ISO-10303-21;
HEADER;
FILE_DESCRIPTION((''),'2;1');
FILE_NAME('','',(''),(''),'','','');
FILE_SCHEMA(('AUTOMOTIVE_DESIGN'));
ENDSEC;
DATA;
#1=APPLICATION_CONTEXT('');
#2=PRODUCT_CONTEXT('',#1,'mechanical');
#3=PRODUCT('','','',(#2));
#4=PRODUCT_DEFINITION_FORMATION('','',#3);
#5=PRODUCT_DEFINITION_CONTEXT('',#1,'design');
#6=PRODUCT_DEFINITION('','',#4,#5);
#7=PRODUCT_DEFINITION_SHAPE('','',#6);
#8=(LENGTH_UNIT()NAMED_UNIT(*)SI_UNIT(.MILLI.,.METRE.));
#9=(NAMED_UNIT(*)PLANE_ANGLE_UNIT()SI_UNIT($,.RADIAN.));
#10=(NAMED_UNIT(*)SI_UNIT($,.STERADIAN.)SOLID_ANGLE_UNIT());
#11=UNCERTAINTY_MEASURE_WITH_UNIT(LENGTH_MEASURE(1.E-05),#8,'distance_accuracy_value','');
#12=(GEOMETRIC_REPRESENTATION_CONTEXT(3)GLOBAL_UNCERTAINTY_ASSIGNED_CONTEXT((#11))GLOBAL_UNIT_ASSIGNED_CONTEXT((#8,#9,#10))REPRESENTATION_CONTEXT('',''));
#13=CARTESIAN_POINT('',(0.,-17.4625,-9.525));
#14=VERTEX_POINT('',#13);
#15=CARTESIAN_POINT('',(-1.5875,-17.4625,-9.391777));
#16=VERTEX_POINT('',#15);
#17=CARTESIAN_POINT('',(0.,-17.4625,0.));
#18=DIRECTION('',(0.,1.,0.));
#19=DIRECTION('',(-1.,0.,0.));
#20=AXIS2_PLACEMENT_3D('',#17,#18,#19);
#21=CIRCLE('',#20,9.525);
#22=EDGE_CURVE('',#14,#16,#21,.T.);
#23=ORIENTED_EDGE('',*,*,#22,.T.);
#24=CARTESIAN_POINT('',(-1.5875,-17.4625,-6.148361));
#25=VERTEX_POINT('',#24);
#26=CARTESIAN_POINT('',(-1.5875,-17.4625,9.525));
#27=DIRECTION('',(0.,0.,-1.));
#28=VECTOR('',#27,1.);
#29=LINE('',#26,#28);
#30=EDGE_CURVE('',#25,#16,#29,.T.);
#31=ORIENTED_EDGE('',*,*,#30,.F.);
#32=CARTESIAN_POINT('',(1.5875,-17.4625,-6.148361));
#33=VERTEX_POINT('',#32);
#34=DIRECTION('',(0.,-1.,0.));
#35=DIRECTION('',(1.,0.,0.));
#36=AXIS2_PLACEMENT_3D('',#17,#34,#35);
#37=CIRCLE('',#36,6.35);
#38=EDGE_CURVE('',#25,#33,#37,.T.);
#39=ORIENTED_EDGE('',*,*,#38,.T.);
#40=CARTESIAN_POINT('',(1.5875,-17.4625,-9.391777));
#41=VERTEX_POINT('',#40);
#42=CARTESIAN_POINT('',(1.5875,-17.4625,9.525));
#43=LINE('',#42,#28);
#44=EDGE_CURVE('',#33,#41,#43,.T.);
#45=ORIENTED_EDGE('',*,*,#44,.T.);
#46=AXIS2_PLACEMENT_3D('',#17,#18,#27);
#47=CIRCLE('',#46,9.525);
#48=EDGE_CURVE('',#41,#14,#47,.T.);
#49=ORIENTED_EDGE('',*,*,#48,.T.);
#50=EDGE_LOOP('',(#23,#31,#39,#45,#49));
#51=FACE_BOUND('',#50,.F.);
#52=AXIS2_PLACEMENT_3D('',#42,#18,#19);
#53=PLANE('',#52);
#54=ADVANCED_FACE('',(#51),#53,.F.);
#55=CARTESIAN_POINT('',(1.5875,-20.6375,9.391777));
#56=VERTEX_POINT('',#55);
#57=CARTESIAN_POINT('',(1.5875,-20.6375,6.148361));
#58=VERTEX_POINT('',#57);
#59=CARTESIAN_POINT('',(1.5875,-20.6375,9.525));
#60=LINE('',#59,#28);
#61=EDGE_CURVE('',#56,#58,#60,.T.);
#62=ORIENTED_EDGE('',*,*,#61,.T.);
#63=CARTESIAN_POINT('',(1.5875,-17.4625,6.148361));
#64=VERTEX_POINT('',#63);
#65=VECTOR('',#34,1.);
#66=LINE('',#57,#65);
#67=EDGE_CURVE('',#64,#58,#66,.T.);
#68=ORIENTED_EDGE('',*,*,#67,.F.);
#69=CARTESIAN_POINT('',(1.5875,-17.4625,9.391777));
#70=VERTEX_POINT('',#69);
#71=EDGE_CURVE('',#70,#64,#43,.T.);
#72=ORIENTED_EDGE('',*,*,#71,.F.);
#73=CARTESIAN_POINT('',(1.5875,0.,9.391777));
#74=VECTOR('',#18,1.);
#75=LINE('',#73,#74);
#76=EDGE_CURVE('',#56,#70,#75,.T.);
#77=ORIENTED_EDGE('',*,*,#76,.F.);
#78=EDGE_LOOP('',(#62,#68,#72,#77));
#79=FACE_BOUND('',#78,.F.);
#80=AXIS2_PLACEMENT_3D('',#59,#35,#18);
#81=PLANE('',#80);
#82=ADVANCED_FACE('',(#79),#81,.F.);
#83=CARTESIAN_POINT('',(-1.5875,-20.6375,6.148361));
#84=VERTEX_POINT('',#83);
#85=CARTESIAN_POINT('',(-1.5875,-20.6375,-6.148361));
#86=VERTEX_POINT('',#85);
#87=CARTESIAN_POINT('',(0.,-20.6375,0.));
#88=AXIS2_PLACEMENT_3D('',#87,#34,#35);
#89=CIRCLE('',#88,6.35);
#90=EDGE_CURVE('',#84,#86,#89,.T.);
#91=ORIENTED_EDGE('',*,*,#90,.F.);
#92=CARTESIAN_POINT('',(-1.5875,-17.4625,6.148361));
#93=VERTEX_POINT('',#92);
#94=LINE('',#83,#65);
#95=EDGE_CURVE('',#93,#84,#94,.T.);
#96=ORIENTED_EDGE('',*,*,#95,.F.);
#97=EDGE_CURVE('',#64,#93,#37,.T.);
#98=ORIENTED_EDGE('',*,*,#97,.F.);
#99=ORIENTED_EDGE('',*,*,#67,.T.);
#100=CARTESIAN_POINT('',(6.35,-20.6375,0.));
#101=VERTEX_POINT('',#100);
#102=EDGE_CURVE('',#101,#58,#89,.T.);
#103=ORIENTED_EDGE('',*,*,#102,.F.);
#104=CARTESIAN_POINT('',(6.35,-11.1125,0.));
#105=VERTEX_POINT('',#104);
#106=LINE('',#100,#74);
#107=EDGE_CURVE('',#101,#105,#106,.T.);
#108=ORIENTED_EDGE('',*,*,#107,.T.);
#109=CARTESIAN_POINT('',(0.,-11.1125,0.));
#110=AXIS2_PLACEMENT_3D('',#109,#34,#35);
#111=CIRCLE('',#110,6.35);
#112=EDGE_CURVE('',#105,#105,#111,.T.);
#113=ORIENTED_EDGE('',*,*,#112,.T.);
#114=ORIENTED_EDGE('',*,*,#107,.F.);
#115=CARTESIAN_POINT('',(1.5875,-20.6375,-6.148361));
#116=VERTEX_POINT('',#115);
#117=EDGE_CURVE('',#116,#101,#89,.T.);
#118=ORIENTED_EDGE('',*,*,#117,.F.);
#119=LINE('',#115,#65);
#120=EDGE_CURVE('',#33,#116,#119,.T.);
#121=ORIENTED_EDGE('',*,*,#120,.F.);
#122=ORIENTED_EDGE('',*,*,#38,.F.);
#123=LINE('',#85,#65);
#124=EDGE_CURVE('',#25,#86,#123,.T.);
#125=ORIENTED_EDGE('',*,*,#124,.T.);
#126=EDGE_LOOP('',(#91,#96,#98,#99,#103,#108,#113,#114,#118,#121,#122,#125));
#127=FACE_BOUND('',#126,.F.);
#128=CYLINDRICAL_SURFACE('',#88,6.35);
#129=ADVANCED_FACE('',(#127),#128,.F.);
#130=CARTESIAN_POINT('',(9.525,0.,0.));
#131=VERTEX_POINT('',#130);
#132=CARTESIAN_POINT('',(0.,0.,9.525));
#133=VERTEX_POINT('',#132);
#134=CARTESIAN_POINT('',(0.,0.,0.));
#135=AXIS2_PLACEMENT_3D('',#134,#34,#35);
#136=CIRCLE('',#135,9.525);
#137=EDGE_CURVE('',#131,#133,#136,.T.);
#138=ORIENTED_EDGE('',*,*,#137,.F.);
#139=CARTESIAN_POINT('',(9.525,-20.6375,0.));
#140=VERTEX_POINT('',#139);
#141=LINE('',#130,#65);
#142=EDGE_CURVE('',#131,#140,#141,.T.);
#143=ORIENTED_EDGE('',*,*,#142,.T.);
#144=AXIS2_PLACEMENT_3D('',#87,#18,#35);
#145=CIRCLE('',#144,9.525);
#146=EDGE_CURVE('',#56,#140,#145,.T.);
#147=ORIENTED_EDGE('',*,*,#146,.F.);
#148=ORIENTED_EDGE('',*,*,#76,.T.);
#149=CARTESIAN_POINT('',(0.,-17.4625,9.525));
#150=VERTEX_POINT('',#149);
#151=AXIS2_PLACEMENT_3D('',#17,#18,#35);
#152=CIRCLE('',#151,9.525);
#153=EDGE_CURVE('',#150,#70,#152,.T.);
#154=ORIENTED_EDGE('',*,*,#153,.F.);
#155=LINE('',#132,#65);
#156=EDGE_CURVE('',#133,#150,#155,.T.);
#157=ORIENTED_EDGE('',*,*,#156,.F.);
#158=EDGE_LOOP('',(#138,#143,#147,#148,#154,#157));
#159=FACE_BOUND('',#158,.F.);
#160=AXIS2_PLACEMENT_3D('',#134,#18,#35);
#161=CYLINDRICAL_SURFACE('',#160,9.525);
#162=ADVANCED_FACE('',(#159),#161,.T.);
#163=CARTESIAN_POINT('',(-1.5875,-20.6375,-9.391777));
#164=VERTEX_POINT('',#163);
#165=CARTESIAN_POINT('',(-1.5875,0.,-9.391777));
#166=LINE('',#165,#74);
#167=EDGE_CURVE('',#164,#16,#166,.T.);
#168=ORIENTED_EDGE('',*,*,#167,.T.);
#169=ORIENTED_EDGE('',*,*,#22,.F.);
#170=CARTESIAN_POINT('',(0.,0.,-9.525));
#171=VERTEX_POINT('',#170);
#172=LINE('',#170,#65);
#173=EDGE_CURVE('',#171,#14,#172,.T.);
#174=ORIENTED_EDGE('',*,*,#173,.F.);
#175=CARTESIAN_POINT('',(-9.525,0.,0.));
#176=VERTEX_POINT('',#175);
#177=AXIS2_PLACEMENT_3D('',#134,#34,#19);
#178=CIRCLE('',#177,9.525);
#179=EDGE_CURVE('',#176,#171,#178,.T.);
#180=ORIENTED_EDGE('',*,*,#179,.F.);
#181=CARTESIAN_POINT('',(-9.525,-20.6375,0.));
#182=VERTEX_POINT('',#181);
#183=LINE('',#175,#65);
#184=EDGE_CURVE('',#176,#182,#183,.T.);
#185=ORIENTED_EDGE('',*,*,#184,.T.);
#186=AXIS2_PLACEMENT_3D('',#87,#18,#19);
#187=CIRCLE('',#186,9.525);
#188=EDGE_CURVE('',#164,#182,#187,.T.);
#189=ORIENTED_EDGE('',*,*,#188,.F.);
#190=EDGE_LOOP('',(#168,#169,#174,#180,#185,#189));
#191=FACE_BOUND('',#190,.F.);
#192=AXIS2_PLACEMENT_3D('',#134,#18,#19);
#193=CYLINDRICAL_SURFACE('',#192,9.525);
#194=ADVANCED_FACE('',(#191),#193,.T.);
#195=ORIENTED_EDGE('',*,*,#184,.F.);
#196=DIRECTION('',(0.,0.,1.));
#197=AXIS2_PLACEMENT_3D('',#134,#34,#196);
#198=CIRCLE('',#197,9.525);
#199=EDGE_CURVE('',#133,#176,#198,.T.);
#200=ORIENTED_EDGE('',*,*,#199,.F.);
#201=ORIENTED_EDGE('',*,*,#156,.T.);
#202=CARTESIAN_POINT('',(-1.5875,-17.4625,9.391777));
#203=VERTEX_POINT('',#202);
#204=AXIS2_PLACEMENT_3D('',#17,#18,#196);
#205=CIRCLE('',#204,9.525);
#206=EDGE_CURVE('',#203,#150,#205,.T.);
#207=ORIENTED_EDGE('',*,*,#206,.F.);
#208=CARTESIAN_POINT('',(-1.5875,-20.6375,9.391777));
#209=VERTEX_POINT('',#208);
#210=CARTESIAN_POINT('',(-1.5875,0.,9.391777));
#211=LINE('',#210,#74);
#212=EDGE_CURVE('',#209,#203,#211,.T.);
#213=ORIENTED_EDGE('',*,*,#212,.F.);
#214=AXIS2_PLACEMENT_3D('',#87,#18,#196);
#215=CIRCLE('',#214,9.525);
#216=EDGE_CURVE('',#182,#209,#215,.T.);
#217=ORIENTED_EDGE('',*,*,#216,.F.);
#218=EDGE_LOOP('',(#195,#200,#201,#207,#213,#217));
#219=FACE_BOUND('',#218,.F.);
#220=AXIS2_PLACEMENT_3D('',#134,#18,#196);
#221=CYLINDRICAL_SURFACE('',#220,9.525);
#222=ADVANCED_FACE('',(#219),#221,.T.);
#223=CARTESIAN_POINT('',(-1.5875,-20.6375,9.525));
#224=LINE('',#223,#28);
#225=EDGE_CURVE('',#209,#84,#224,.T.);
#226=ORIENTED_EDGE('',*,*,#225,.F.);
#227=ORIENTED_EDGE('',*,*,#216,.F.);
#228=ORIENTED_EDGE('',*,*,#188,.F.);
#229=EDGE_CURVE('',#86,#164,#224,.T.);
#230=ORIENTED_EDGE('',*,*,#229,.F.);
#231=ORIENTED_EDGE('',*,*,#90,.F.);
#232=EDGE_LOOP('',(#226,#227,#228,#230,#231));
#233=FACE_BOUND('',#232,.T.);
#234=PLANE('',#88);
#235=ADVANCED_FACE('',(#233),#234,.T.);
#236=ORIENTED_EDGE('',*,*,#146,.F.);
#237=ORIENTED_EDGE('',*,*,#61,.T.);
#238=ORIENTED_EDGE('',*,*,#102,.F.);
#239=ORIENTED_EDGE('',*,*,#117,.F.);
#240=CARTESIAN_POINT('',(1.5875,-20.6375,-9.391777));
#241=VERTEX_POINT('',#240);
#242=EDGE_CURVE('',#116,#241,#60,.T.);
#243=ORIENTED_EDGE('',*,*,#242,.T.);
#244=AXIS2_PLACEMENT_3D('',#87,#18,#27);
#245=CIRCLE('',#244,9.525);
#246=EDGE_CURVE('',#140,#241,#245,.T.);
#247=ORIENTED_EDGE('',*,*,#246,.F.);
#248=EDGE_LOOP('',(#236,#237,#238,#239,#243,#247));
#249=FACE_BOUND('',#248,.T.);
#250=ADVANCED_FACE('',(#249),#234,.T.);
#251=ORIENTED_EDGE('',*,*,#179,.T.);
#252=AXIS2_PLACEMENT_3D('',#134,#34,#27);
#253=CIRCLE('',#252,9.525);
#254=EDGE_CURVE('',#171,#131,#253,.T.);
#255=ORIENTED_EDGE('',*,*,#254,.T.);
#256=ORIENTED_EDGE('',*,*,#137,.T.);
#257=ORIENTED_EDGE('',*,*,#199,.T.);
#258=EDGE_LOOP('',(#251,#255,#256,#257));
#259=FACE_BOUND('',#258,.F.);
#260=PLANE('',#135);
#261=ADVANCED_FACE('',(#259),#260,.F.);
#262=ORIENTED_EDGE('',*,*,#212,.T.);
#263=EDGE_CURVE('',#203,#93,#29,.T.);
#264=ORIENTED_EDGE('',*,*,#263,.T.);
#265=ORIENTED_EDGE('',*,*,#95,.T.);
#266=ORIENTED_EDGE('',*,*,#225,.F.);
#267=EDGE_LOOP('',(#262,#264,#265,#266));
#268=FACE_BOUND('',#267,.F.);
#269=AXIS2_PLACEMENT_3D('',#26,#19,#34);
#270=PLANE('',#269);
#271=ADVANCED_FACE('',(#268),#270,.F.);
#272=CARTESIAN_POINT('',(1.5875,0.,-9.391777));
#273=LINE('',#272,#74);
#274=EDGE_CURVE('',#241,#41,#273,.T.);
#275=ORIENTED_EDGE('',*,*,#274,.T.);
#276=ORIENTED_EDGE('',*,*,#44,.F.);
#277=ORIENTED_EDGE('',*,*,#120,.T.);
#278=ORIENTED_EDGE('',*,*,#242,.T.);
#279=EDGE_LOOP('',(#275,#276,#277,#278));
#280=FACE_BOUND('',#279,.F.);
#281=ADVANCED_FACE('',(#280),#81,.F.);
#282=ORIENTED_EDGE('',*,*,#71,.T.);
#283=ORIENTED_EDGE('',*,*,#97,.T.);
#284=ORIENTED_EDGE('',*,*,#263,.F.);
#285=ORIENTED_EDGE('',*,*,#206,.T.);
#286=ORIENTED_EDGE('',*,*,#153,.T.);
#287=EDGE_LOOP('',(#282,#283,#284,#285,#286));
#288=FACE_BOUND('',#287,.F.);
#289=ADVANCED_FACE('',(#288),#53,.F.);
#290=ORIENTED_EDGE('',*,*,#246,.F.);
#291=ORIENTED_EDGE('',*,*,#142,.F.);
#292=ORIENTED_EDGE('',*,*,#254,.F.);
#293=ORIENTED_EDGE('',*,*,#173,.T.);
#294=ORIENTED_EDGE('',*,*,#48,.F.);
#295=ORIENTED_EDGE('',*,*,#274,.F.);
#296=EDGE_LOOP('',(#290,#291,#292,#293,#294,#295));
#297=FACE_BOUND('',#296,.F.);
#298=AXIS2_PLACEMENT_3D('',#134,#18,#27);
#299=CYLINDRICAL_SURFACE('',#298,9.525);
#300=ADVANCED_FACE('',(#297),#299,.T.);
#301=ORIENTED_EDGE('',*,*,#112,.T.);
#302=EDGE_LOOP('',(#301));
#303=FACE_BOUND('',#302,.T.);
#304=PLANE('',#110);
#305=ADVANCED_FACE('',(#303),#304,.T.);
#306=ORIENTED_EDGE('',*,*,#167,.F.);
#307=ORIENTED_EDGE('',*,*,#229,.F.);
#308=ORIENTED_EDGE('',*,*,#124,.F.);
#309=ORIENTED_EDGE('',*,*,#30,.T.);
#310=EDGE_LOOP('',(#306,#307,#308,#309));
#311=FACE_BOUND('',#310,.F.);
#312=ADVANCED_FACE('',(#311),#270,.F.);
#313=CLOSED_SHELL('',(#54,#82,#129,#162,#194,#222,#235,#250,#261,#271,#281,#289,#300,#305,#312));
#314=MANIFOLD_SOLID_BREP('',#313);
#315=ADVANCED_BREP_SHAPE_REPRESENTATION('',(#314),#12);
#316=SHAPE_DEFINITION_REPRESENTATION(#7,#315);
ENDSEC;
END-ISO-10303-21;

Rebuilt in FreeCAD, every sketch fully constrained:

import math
import FreeCAD as App
import Part
import Sketcher
from FreeCAD import Vector
Q = App.Units.Quantity

doc = App.newDocument("Part")
body = doc.addObject("PartDesign::Body", "Body")

sketch1 = doc.addObject("Sketcher::SketchObject", "Sketch")
body.addObject(sketch1)
sketch1.AttachmentSupport = (doc.XZ_Plane, [""])
sketch1.MapMode = "FlatFace"
sketch1.addGeometry([
    Part.LineSegment(Vector(-9.525, 9.525, 0), Vector(-9.525, -9.525, 0)),
    Part.LineSegment(Vector(-9.525, -9.525, 0), Vector(9.525, -9.525, 0)),
    Part.LineSegment(Vector(9.525, -9.525, 0), Vector(9.525, 9.525, 0)),
    Part.LineSegment(Vector(9.525, 9.525, 0), Vector(-9.525, 9.525, 0)),
], False)
sketch1.addConstraint([
    Sketcher.Constraint("Coincident", 0, 2, 1, 1),
    Sketcher.Constraint("Coincident", 1, 2, 2, 1),
    Sketcher.Constraint("Coincident", 2, 2, 3, 1),
    Sketcher.Constraint("Coincident", 3, 2, 0, 1),
    Sketcher.Constraint("Vertical", 0),
    Sketcher.Constraint("Horizontal", 1),
    Sketcher.Constraint("Vertical", 2),
    Sketcher.Constraint("Horizontal", 3),
    Sketcher.Constraint("Symmetric", 0, 2, 2, 2, -1, 1),
    Sketcher.Constraint("Equal", 3, 0),
    Sketcher.Constraint("DistanceX", 1, 1, 1, 2, Q("0.75 in")),
])
pad1 = doc.addObject("PartDesign::Pad", "Pad")
body.addObject(pad1)
pad1.Profile = sketch1
pad1.Length = Q("0.8125 in")

sketch2 = doc.addObject("Sketcher::SketchObject", "Sketch001")
body.addObject(sketch2)
sketch2.AttachmentSupport = (doc.XZ_Plane, [""])
sketch2.MapMode = "FlatFace"
sketch2.AttachmentOffset = App.Placement(Vector(0, 0, 0.8125 * 25.4), App.Rotation())
sketch2.addGeometry(Part.Circle(Vector(0, 0, 0), Vector(0, 0, 1), 6.35), False)
sketch2.addConstraint([
    Sketcher.Constraint("Coincident", 0, 3, -1, 1),
    Sketcher.Constraint("Diameter", 0, Q("0.5 in")),
])
pocket1 = doc.addObject("PartDesign::Pocket", "Pocket")
body.addObject(pocket1)
pocket1.Profile = sketch2
pocket1.Length = Q("0.375 in")

sketch3 = doc.addObject("Sketcher::SketchObject", "Sketch002")
body.addObject(sketch3)
sketch3.AttachmentSupport = (doc.XY_Plane, [""])
sketch3.MapMode = "FlatFace"
sketch3.AttachmentOffset = App.Placement(Vector(0, 0, 0.375 * 25.4), App.Rotation())
sketch3.addGeometry([
    Part.LineSegment(Vector(-1.5875, -20.6375, 0), Vector(1.5875, -20.6375, 0)),
    Part.LineSegment(Vector(1.5875, -20.6375, 0), Vector(1.5875, -17.4625, 0)),
    Part.LineSegment(Vector(1.5875, -17.4625, 0), Vector(-1.5875, -17.4625, 0)),
    Part.LineSegment(Vector(-1.5875, -17.4625, 0), Vector(-1.5875, -20.6375, 0)),
], False)
sketch3.addConstraint([
    Sketcher.Constraint("Coincident", 0, 2, 1, 1),
    Sketcher.Constraint("Coincident", 1, 2, 2, 1),
    Sketcher.Constraint("Coincident", 2, 2, 3, 1),
    Sketcher.Constraint("Coincident", 3, 2, 0, 1),
    Sketcher.Constraint("Horizontal", 0),
    Sketcher.Constraint("Vertical", 1),
    Sketcher.Constraint("Horizontal", 2),
    Sketcher.Constraint("Vertical", 3),
    Sketcher.Constraint("Equal", 2, 1),
    Sketcher.Constraint("DistanceX", 0, 1, 0, 2, Q("0.125 in")),
    Sketcher.Constraint("DistanceX", -1, 1, 0, 2, Q("0.0625 in")),
    Sketcher.Constraint("DistanceY", 0, 2, -1, 1, Q("0.8125 in")),
])
pocket2 = doc.addObject("PartDesign::Pocket", "Pocket001")
body.addObject(pocket2)
pocket2.Profile = sketch3
pocket2.Length = Q("1 in")

sketch4 = doc.addObject("Sketcher::SketchObject", "Sketch003")
body.addObject(sketch4)
sketch4.AttachmentSupport = (doc.XZ_Plane, [""])
sketch4.MapMode = "FlatFace"
sketch4.addGeometry([
    Part.ArcOfCircle(Part.Circle(Vector(0, 0, 0), Vector(0, 0, 1), 9.525), math.radians(0), math.radians(90)),
    Part.LineSegment(Vector(0, 9.525, 0), Vector(9.525, 9.525, 0)),
    Part.LineSegment(Vector(9.525, 9.525, 0), Vector(9.525, 0, 0)),
    Part.ArcOfCircle(Part.Circle(Vector(0, 0, 0), Vector(0, 0, 1), 9.525), math.radians(90), math.radians(180)),
    Part.LineSegment(Vector(-9.525, 0, 0), Vector(-9.525, 9.525, 0)),
    Part.LineSegment(Vector(-9.525, 9.525, 0), Vector(0, 9.525, 0)),
    Part.LineSegment(Vector(9.525, -9.525, 0), Vector(0, -9.525, 0)),
    Part.ArcOfCircle(Part.Circle(Vector(0, 0, 0), Vector(0, 0, 1), 9.525), math.radians(-90), math.radians(0)),
    Part.LineSegment(Vector(9.525, 0, 0), Vector(9.525, -9.525, 0)),
    Part.LineSegment(Vector(-9.525, -9.525, 0), Vector(-9.525, 0, 0)),
    Part.ArcOfCircle(Part.Circle(Vector(0, 0, 0), Vector(0, 0, 1), 9.525), math.radians(180), math.radians(270)),
    Part.LineSegment(Vector(0, -9.525, 0), Vector(-9.525, -9.525, 0)),
], False)
sketch4.addConstraint([
    Sketcher.Constraint("Tangent", 0, 2, 1, 1),
    Sketcher.Constraint("Coincident", 1, 2, 2, 1),
    Sketcher.Constraint("Tangent", 2, 2, 0, 1),
    Sketcher.Constraint("Tangent", 3, 2, 4, 1),
    Sketcher.Constraint("Coincident", 4, 2, 5, 1),
    Sketcher.Constraint("Tangent", 5, 2, 3, 1),
    Sketcher.Constraint("Tangent", 6, 2, 7, 1),
    Sketcher.Constraint("Tangent", 7, 2, 8, 1),
    Sketcher.Constraint("Coincident", 8, 2, 6, 1),
    Sketcher.Constraint("Tangent", 9, 2, 10, 1),
    Sketcher.Constraint("Tangent", 10, 2, 11, 1),
    Sketcher.Constraint("Coincident", 11, 2, 9, 1),
    Sketcher.Constraint("Horizontal", 1),
    Sketcher.Constraint("Vertical", 2),
    Sketcher.Constraint("Vertical", 4),
    Sketcher.Constraint("Horizontal", 5),
    Sketcher.Constraint("Horizontal", 6),
    Sketcher.Constraint("Vertical", 8),
    Sketcher.Constraint("Vertical", 9),
    Sketcher.Constraint("Horizontal", 11),
    Sketcher.Constraint("Coincident", 0, 3, -1, 1),
    Sketcher.Constraint("Coincident", 3, 3, -1, 1),
    Sketcher.Constraint("Coincident", 7, 3, -1, 1),
    Sketcher.Constraint("Coincident", 10, 3, -1, 1),
    Sketcher.Constraint("Equal", 0, 3),
    Sketcher.Constraint("Equal", 3, 7),
    Sketcher.Constraint("Equal", 7, 10),
    Sketcher.Constraint("Radius", 0, Q("0.375 in")),
])
pocket3 = doc.addObject("PartDesign::Pocket", "Pocket002")
body.addObject(pocket3)
pocket3.Profile = sketch4
pocket3.Length = Q("1 in")
pocket3.Reversed = True

doc.recompute()
